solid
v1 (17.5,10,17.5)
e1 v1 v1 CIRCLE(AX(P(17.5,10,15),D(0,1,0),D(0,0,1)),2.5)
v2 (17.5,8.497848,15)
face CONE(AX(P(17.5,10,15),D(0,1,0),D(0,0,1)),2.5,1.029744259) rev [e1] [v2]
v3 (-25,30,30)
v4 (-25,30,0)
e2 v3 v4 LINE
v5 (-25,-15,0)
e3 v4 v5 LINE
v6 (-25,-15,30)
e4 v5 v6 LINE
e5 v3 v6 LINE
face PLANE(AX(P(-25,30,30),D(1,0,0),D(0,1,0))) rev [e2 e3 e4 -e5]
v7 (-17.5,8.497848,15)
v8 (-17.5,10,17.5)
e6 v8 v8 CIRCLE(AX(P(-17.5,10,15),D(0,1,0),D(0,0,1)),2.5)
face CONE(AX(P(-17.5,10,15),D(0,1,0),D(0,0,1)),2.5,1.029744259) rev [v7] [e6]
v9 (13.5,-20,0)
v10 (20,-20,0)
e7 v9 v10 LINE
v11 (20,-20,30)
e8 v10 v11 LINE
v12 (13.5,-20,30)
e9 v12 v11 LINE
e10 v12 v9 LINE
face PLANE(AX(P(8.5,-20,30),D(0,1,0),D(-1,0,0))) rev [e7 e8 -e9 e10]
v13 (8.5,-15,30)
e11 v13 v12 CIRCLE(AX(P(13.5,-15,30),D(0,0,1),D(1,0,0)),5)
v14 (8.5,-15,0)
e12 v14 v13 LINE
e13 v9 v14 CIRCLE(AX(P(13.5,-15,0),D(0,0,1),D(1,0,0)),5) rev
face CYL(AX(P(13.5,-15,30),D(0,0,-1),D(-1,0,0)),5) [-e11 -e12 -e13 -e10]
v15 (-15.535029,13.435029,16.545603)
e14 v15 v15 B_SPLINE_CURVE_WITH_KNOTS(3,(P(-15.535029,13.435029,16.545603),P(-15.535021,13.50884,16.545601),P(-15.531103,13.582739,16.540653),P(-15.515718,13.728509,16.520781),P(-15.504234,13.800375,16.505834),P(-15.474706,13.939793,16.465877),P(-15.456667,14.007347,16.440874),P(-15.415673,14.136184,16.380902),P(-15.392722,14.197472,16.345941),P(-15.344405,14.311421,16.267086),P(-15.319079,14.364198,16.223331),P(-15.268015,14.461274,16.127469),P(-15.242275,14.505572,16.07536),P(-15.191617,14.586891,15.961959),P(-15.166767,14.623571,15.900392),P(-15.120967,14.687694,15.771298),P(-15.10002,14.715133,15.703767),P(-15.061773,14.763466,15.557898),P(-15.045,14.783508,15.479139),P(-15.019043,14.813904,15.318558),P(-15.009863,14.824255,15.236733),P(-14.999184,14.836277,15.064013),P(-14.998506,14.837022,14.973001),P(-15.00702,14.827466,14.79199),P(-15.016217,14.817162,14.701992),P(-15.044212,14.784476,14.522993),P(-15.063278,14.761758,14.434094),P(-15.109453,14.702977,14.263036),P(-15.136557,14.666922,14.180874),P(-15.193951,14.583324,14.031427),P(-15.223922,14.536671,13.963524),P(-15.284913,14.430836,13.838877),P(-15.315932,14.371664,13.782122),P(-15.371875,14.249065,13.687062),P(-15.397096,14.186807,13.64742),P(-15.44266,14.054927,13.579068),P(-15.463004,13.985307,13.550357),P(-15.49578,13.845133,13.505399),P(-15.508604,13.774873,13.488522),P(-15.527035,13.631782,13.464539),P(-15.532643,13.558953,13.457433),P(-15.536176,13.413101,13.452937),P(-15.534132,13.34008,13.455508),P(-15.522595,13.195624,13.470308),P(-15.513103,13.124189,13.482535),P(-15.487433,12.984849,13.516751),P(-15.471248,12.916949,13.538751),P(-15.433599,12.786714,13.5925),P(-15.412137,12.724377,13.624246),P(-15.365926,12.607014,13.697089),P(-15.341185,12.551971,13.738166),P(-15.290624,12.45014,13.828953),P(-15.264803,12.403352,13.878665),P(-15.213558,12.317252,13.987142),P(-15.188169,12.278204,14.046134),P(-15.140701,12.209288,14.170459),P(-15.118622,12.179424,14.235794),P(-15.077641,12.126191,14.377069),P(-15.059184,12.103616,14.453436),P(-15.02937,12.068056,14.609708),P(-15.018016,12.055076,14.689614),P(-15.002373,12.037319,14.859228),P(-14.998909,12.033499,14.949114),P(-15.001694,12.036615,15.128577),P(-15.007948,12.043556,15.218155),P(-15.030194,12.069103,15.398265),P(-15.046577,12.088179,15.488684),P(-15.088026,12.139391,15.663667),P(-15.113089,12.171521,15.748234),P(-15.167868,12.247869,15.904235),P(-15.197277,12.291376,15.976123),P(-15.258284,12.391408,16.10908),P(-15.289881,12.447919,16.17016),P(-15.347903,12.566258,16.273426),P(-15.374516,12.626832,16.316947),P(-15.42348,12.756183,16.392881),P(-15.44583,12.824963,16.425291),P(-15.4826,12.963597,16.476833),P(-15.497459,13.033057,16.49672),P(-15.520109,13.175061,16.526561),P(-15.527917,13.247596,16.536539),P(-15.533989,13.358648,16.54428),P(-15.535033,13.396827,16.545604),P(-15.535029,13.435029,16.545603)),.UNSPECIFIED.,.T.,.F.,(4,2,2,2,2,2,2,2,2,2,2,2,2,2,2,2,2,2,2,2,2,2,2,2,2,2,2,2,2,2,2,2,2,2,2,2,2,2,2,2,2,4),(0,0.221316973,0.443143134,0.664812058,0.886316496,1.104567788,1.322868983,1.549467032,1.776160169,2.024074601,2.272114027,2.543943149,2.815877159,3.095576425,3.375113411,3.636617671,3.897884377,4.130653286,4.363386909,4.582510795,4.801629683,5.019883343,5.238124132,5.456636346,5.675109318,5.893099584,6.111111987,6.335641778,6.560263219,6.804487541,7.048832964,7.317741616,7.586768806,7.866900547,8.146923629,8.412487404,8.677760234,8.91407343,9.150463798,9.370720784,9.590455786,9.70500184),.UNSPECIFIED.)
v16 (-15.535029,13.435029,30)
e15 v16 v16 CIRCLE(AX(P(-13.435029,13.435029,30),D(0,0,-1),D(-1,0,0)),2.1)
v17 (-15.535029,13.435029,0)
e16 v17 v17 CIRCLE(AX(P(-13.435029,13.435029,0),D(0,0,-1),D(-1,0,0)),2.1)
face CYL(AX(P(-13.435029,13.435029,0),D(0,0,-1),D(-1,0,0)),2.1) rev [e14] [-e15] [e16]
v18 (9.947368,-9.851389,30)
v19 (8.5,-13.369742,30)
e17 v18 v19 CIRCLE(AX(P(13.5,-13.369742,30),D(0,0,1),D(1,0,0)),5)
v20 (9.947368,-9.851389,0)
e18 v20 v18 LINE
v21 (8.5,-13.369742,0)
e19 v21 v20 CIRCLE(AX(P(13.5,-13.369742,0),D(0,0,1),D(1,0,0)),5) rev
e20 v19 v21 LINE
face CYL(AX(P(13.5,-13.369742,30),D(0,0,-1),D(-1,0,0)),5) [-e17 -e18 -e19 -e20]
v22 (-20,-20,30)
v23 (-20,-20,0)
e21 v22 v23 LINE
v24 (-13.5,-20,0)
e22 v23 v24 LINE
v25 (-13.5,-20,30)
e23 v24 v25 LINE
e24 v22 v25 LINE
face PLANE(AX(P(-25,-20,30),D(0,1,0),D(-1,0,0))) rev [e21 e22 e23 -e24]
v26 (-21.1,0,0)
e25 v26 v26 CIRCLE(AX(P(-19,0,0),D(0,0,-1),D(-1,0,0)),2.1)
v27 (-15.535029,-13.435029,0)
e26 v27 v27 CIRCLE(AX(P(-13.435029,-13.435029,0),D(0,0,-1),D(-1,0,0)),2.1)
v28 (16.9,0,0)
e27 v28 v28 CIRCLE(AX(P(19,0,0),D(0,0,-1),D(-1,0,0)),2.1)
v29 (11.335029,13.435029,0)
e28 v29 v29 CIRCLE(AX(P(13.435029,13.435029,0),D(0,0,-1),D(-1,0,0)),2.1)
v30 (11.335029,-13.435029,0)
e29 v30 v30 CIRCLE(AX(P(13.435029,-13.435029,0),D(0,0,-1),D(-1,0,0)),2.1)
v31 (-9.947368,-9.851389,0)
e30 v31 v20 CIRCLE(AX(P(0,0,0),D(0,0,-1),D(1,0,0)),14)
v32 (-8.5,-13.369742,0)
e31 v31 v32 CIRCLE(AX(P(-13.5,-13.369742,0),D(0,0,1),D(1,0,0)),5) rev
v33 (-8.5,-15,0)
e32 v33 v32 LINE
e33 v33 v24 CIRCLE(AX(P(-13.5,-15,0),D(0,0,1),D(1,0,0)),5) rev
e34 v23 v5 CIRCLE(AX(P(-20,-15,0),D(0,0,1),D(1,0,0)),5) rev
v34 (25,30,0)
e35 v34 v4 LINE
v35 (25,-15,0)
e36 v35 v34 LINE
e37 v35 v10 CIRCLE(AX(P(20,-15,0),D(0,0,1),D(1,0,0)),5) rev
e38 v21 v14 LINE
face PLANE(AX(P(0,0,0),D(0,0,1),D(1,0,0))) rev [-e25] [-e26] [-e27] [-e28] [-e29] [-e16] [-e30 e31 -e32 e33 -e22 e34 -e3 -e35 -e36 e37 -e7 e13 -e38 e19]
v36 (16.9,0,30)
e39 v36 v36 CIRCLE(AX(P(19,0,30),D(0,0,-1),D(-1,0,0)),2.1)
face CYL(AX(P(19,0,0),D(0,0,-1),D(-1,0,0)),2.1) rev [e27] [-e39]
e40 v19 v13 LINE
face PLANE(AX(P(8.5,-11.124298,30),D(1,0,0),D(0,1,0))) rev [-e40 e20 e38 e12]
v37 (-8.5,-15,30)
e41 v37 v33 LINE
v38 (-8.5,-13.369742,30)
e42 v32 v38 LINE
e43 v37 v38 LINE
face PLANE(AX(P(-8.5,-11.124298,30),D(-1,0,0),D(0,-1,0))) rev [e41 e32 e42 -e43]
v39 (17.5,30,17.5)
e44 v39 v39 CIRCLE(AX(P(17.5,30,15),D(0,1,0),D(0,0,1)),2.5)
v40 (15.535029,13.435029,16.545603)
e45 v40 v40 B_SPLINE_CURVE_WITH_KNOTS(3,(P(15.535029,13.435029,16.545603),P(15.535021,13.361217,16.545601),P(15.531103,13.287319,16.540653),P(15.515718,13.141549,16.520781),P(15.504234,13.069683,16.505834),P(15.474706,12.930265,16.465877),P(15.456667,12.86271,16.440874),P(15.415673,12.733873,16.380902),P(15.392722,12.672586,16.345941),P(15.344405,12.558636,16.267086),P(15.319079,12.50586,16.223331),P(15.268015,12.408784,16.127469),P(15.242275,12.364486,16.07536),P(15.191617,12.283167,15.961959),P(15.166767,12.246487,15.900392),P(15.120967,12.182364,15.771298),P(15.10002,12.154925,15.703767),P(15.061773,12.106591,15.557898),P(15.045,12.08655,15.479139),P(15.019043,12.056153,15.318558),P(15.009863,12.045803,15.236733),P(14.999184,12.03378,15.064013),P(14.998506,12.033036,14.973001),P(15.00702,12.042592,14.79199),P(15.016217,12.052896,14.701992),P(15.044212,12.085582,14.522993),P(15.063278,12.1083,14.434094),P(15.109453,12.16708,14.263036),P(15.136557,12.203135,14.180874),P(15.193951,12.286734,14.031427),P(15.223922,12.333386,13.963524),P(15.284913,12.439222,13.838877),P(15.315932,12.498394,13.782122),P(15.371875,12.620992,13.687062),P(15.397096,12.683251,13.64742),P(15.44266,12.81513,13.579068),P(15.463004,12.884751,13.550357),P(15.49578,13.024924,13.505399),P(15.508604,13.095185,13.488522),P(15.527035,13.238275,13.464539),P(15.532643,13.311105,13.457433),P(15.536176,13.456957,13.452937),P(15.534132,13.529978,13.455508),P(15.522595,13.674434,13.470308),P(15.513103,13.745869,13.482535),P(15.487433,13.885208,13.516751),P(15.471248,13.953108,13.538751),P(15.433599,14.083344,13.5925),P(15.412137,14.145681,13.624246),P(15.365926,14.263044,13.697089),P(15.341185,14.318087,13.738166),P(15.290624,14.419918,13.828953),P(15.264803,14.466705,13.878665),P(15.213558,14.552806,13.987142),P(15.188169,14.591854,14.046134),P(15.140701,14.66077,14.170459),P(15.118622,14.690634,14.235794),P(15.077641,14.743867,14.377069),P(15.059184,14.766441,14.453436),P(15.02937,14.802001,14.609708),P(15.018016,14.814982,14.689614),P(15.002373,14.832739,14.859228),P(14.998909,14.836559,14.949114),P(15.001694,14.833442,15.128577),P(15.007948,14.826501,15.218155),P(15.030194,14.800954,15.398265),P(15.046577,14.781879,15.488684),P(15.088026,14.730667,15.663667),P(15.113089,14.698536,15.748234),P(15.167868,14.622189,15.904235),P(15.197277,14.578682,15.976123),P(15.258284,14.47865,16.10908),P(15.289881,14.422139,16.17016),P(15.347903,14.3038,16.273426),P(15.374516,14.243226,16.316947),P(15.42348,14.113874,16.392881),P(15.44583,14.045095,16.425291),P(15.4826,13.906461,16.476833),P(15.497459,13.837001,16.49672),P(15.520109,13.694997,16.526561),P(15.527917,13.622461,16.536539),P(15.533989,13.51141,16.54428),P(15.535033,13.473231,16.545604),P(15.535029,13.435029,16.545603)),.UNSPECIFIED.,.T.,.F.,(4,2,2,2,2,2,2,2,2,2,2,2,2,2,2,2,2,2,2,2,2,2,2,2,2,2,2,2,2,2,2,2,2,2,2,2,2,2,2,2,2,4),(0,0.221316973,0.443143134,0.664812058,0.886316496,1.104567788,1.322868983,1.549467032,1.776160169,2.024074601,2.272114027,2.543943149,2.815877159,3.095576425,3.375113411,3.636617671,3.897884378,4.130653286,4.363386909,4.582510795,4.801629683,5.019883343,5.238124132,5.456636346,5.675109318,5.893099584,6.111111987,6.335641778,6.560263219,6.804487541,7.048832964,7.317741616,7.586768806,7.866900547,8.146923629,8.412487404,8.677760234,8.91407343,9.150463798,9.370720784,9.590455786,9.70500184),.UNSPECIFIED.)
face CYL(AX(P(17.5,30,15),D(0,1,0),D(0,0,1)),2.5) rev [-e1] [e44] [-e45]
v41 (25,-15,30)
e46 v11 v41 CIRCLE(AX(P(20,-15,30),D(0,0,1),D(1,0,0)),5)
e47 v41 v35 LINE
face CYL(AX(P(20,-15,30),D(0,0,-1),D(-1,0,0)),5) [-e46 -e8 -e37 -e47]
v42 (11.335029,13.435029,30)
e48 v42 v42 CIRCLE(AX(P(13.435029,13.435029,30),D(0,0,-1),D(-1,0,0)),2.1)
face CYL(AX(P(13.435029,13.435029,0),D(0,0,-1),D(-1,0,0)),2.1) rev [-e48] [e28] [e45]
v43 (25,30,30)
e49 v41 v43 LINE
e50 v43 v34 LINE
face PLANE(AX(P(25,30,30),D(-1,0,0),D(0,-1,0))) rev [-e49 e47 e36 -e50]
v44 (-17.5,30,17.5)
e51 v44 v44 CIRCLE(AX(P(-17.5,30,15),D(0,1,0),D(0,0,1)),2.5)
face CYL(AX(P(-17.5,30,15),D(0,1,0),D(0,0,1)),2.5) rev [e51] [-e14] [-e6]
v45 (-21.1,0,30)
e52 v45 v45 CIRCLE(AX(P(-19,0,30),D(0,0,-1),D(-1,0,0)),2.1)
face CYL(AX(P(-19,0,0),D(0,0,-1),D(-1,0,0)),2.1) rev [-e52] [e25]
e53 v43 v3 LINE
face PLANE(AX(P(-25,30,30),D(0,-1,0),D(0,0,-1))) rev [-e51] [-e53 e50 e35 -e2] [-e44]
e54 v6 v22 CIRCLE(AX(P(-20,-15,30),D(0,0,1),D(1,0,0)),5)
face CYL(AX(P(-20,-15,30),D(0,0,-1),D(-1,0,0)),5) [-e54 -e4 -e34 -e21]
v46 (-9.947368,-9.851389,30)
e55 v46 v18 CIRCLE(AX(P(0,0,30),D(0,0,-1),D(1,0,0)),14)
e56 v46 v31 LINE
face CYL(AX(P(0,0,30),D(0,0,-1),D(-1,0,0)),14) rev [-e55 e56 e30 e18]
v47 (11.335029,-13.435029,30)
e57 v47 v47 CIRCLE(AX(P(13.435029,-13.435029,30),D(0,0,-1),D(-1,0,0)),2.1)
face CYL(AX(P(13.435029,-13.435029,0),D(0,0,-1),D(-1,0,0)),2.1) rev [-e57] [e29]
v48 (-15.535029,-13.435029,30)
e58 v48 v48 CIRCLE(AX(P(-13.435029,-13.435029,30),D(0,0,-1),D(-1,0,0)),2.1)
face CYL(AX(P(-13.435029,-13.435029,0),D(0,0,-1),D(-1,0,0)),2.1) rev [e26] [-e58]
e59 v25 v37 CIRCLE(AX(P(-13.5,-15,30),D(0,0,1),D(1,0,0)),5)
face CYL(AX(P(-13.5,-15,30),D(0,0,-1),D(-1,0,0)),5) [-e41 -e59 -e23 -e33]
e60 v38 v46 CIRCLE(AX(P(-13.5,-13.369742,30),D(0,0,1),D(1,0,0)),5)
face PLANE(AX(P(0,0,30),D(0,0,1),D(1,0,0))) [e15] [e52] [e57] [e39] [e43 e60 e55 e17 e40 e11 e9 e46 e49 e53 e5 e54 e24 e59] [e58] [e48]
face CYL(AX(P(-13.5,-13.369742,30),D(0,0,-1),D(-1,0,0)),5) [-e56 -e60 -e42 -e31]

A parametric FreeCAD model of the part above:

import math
import FreeCAD as App
import Part
import Sketcher

V = App.Vector


def edges_at(feature, points):
    """Names of the edges that pass closest to the given points."""
    edges = feature.Shape.Edges
    near = lambda p: min(range(len(edges)), key=lambda i: edges[i].distToShape(Part.Vertex(*p))[0])
    return sorted({f"Edge{near(p) + 1}" for p in points})

doc = App.newDocument("Part")
body = doc.addObject("PartDesign::Body", "Body")

# Sketch on XY plane
sketch1 = doc.addObject("Sketcher::SketchObject", "Sketch")
body.addObject(sketch1)
sketch1.AttachmentSupport = (doc.XY_Plane, [""])
sketch1.MapMode = "FlatFace"
sketch1.addGeometry([
    Part.LineSegment(V(25, 30, 0), V(-25, 30, 0)),  # 0
    Part.LineSegment(V(-25, 30, 0), V(-25, -20, 0)),  # 1
    Part.LineSegment(V(-25, -20, 0), V(-8, -20, 0)),  # 2
    Part.LineSegment(V(-8, -20, 0), V(-8, -11, 0)),  # 3
    Part.ArcOfCircle(Part.Circle(V(0, 0, 0), V(0, 0, 1), 14), math.radians(-53), math.radians(233)),  # 4
    Part.LineSegment(V(8, -11, 0), V(8, -20, 0)),  # 5
    Part.LineSegment(V(8, -20, 0), V(25, -20, 0)),  # 6
    Part.LineSegment(V(25, -20, 0), V(25, 30, 0)),  # 7
], False)
sketch1.addConstraint([
    Sketcher.Constraint("Coincident", 0, 2, 1, 1),
    Sketcher.Constraint("Coincident", 1, 2, 2, 1),
    Sketcher.Constraint("Coincident", 2, 2, 3, 1),
    Sketcher.Constraint("Coincident", 3, 2, 4, 2),
    Sketcher.Constraint("Coincident", 4, 1, 5, 1),
    Sketcher.Constraint("Coincident", 5, 2, 6, 1),
    Sketcher.Constraint("Coincident", 6, 2, 7, 1),
    Sketcher.Constraint("Coincident", 7, 2, 0, 1),
    Sketcher.Constraint("Horizontal", 0),
    Sketcher.Constraint("Vertical", 1),
    Sketcher.Constraint("Horizontal", 2),
    Sketcher.Constraint("Vertical", 3),
    Sketcher.Constraint("Vertical", 5),
    Sketcher.Constraint("Horizontal", 6),
    Sketcher.Constraint("Vertical", 7),
    Sketcher.Constraint("Coincident", 4, 3, -1, 1),
    Sketcher.Constraint("Symmetric", 2, 2, 5, 2, -2),
    Sketcher.Constraint("Equal", 2, 6),
    Sketcher.Constraint("Equal", 0, 1),
    Sketcher.Constraint("Radius", 4, 14.0),
    Sketcher.Constraint("DistanceX", 0, 2, 0, 1, 50.0),
    Sketcher.Constraint("DistanceX", 2, 1, 2, 2, 16.5),
    Sketcher.Constraint("DistanceY", -1, 1, 0, 2, 30.0),
])
pad1 = doc.addObject("PartDesign::Pad", "Pad")
body.addObject(pad1)
pad1.Profile = sketch1
pad1.Length = 30
doc.recompute()

fillet = doc.addObject("PartDesign::Fillet", "Fillet")
body.addObject(fillet)
fillet.Base = (pad1, edges_at(pad1, [
    (-8.5, -20, 15),
    (-25, -20, 15),
    (25, -20, 15),
    (8.5, -20, 15),
    (8.5, -11.124, 15),
    (-8.5, -11.124, 15),
]))
fillet.Radius = 5

# Sketch on XY plane
sketch2 = doc.addObject("Sketcher::SketchObject", "Sketch001")
body.addObject(sketch2)
sketch2.AttachmentSupport = (doc.XY_Plane, [""])
sketch2.MapMode = "FlatFace"
sketch2.addGeometry([
    Part.Circle(V(13.4, 13.4, 0), V(0, 0, 1), 2.1),  # 0
    Part.Circle(V(-13.4, 13.4, 0), V(0, 0, 1), 2.1),  # 1
    Part.Circle(V(-19, 0, 0), V(0, 0, 1), 2.1),  # 2
    Part.Circle(V(-13.4, -13.4, 0), V(0, 0, 1), 2.1),  # 3
    Part.Circle(V(13.4, -13.4, 0), V(0, 0, 1), 2.1),  # 4
    Part.Circle(V(19, 0, 0), V(0, 0, 1), 2.1),  # 5
], False)
sketch2.addConstraint([
    Sketcher.Constraint("Equal", 0, 1),
    Sketcher.Constraint("Equal", 1, 2),
    Sketcher.Constraint("Equal", 2, 3),
    Sketcher.Constraint("Equal", 3, 4),
    Sketcher.Constraint("Equal", 4, 5),
    Sketcher.Constraint("Symmetric", 0, 3, 3, 3, -1, 1),
    Sketcher.Constraint("Symmetric", 1, 3, 4, 3, -1, 1),
    Sketcher.Constraint("Symmetric", 2, 3, 5, 3, -1, 1),
    Sketcher.Constraint("Symmetric", 0, 3, 1, 3, -2),
    Sketcher.Constraint("PointOnObject", 2, 3, -1),
    Sketcher.Constraint("Diameter", 0, 4.2),
    Sketcher.Constraint("DistanceX", 2, 3, -1, 1, 19.0),
    Sketcher.Constraint("DistanceX", -1, 1, 0, 3, 13.435029),
    Sketcher.Constraint("DistanceY", -1, 1, 0, 3, 13.435029),
])
doc.recompute()
hole = doc.addObject("PartDesign::Hole", "Hole")
body.addObject(hole)
hole.Profile = sketch2
hole.ThreadType = "None"
hole.Diameter = 4.2
hole.DepthType = "ThroughAll"
hole.Reversed = True

# Sketch on XZ plane
sketch3 = doc.addObject("Sketcher::SketchObject", "Sketch002")
body.addObject(sketch3)
sketch3.AttachmentSupport = (doc.XZ_Plane, [""])
sketch3.MapMode = "FlatFace"
sketch3.AttachmentOffset = App.Placement(V(0, 0, -30), App.Rotation())
sketch3.addGeometry([
    Part.Circle(V(-17.5, 15, 0), V(0, 0, 1), 2.5),
    Part.Circle(V(17.5, 15, 0), V(0, 0, 1), 2.5),
], False)
sketch3.addConstraint([
    Sketcher.Constraint("Equal", 0, 1),
    Sketcher.Constraint("Symmetric", 0, 3, 1, 3, -2),
    Sketcher.Constraint("Diameter", 0, 5.0),
    Sketcher.Constraint("DistanceY", -1, 1, 0, 3, 15.0),
    Sketcher.Constraint("DistanceX", 0, 3, 1, 3, 35.0),
])
doc.recompute()
hole2 = doc.addObject("PartDesign::Hole", "Hole001")
body.addObject(hole2)
hole2.Profile = sketch3
hole2.ThreadType = "None"
hole2.Diameter = 5
hole2.DepthType = "Dimension"
hole2.Depth = 20
hole2.DrillPoint = "Angled"
hole2.DrillPointAngle = 118
hole2.Reversed = True

doc.recompute()
